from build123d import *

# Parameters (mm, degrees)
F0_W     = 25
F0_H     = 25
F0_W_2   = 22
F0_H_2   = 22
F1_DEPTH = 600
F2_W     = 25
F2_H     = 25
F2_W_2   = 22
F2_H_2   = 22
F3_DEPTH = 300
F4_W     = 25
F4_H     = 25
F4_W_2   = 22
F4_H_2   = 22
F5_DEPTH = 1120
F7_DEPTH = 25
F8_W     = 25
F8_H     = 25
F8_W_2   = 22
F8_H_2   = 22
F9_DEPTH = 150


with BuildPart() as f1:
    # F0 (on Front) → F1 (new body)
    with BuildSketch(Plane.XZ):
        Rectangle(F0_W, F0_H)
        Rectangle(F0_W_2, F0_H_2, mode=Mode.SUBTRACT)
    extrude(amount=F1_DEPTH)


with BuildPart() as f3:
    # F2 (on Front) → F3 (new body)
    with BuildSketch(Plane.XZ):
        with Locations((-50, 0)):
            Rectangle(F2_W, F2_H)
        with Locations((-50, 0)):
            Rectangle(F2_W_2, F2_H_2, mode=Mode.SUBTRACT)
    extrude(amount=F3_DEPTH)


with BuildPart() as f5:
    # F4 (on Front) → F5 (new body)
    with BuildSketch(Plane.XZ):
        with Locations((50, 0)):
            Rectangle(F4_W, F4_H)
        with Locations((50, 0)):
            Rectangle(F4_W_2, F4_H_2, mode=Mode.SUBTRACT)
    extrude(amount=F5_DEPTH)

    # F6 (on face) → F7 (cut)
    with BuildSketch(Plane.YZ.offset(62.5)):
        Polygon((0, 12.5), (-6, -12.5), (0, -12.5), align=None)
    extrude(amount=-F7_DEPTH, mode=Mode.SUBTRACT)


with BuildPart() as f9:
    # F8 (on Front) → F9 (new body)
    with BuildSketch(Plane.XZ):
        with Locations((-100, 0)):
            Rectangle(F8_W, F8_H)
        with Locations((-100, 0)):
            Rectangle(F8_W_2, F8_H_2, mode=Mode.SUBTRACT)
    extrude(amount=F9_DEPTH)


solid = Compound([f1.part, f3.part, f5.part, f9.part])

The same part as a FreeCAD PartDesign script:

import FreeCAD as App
import Part
import Sketcher


def add_polygon(sketch, points):
    """Adds a closed chain of lines whose ends are joined by coincident constraints."""
    first, n = sketch.GeometryCount, len(points)
    for a, b in zip(points, points[1:] + points[:1]):
        sketch.addGeometry(Part.LineSegment(App.Vector(*a, 0), App.Vector(*b, 0)), False)
    for i in range(n):
        sketch.addConstraint(Sketcher.Constraint("Coincident", first + i, 2, first + (i + 1) % n, 1))

doc = App.newDocument("Part")
body = doc.addObject("PartDesign::Body", "Body")

# Sketch on XZ plane
sketch1 = body.newObject("Sketcher::SketchObject", "Sketch")
sketch1.AttachmentSupport = (doc.getObject("XZ_Plane"), [""])
sketch1.MapMode = "FlatFace"
add_polygon(sketch1, [(-12, 12), (-12, -12), (12, -12), (12, 12)])  # lines 0-3
add_polygon(sketch1, [(11, -11), (-11, -11), (-11, 11), (11, 11)])  # lines 4-7
sketch1.addConstraint(Sketcher.Constraint("Vertical", 0))
sketch1.addConstraint(Sketcher.Constraint("Horizontal", 1))
sketch1.addConstraint(Sketcher.Constraint("Vertical", 2))
sketch1.addConstraint(Sketcher.Constraint("Horizontal", 3))
sketch1.addConstraint(Sketcher.Constraint("Horizontal", 4))
sketch1.addConstraint(Sketcher.Constraint("Vertical", 5))
sketch1.addConstraint(Sketcher.Constraint("Horizontal", 6))
sketch1.addConstraint(Sketcher.Constraint("Vertical", 7))
sketch1.addConstraint(Sketcher.Constraint("Symmetric", 0, 2, 2, 2, -1, 1))
sketch1.addConstraint(Sketcher.Constraint("Symmetric", 4, 2, 6, 2, -1, 1))
sketch1.addConstraint(Sketcher.Constraint("Equal", 3, 0))
sketch1.addConstraint(Sketcher.Constraint("Equal", 6, 5))
sketch1.addConstraint(Sketcher.Constraint("DistanceX", 1, 1, 1, 2, 25.0))
sketch1.addConstraint(Sketcher.Constraint("DistanceX", 4, 2, 4, 1, 22.0))
pad1 = body.newObject("PartDesign::Pad", "Pad")
pad1.Profile = sketch1
pad1.Length = 600
body2 = doc.addObject("PartDesign::Body", "Body001")

# Sketch on XZ plane
sketch2 = body2.newObject("Sketcher::SketchObject", "Sketch001")
sketch2.AttachmentSupport = (doc.getObject("XZ_Plane001"), [""])
sketch2.MapMode = "FlatFace"
add_polygon(sketch2, [(-62, 12), (-62, -12), (-38, -12), (-38, 12)])  # lines 0-3
add_polygon(sketch2, [(-39, -11), (-61, -11), (-61, 11), (-39, 11)])  # lines 4-7
sketch2.addConstraint(Sketcher.Constraint("Vertical", 0))
sketch2.addConstraint(Sketcher.Constraint("Horizontal", 1))
sketch2.addConstraint(Sketcher.Constraint("Vertical", 2))
sketch2.addConstraint(Sketcher.Constraint("Horizontal", 3))
sketch2.addConstraint(Sketcher.Constraint("Horizontal", 4))
sketch2.addConstraint(Sketcher.Constraint("Vertical", 5))
sketch2.addConstraint(Sketcher.Constraint("Horizontal", 6))
sketch2.addConstraint(Sketcher.Constraint("Vertical", 7))
sketch2.addConstraint(Sketcher.Constraint("Equal", 3, 0))
sketch2.addConstraint(Sketcher.Constraint("Equal", 6, 5))
sketch2.addConstraint(Sketcher.Constraint("DistanceX", 1, 1, 1, 2, 25.0))
sketch2.addConstraint(Sketcher.Constraint("DistanceX", 4, 2, 4, 1, 22.0))
sketch2.addConstraint(Sketcher.Constraint("DistanceX", 4, 2, -1, 1, 61.0))
sketch2.addConstraint(Sketcher.Constraint("DistanceY", 4, 2, -1, 1, 11.0))
sketch2.addConstraint(Sketcher.Constraint("DistanceX", 0, 2, -1, 1, 62.5))
sketch2.addConstraint(Sketcher.Constraint("DistanceY", 0, 2, -1, 1, 12.5))
pad2 = body2.newObject("PartDesign::Pad", "Pad001")
pad2.Profile = sketch2
pad2.Length = 300
body3 = doc.addObject("PartDesign::Body", "Body002")

# Sketch on XZ plane
sketch3 = body3.newObject("Sketcher::SketchObject", "Sketch002")
sketch3.AttachmentSupport = (doc.getObject("XZ_Plane002"), [""])
sketch3.MapMode = "FlatFace"
add_polygon(sketch3, [(38, 12), (38, -12), (62, -12), (62, 12)])  # lines 0-3
add_polygon(sketch3, [(61, -11), (39, -11), (39, 11), (61, 11)])  # lines 4-7
sketch3.addConstraint(Sketcher.Constraint("Vertical", 0))
sketch3.addConstraint(Sketcher.Constraint("Horizontal", 1))
sketch3.addConstraint(Sketcher.Constraint("Vertical", 2))
sketch3.addConstraint(Sketcher.Constraint("Horizontal", 3))
sketch3.addConstraint(Sketcher.Constraint("Horizontal", 4))
sketch3.addConstraint(Sketcher.Constraint("Vertical", 5))
sketch3.addConstraint(Sketcher.Constraint("Horizontal", 6))
sketch3.addConstraint(Sketcher.Constraint("Vertical", 7))
sketch3.addConstraint(Sketcher.Constraint("Equal", 3, 0))
sketch3.addConstraint(Sketcher.Constraint("Equal", 6, 5))
sketch3.addConstraint(Sketcher.Constraint("DistanceX", 1, 1, 1, 2, 25.0))
sketch3.addConstraint(Sketcher.Constraint("DistanceX", 4, 2, 4, 1, 22.0))
sketch3.addConstraint(Sketcher.Constraint("DistanceX", -1, 1, 4, 2, 39.0))
sketch3.addConstraint(Sketcher.Constraint("DistanceY", 4, 2, -1, 1, 11.0))
sketch3.addConstraint(Sketcher.Constraint("DistanceX", -1, 1, 0, 2, 37.5))
sketch3.addConstraint(Sketcher.Constraint("DistanceY", 0, 2, -1, 1, 12.5))
pad3 = body3.newObject("PartDesign::Pad", "Pad002")
pad3.Profile = sketch3
pad3.Length = 1120

# Sketch on YZ plane
sketch4 = body3.newObject("Sketcher::SketchObject", "Sketch003")
sketch4.AttachmentSupport = (doc.getObject("YZ_Plane002"), [""])
sketch4.MapMode = "FlatFace"
sketch4.AttachmentOffset = App.Placement(App.Vector(0, 0, 62.5), App.Rotation())
add_polygon(sketch4, [(0, 12), (-6, -12), (0, -12)])  # lines 0-2
sketch4.addConstraint(Sketcher.Constraint("Horizontal", 1))
sketch4.addConstraint(Sketcher.Constraint("Vertical", 2))
sketch4.addConstraint(Sketcher.Constraint("Symmetric", 1, 2, 2, 2, -1, 1))
sketch4.addConstraint(Sketcher.Constraint("DistanceX", 1, 1, 1, 2, 6.0))
sketch4.addConstraint(Sketcher.Constraint("DistanceY", 2, 1, 2, 2, 25.0))
pocket1 = body3.newObject("PartDesign::Pocket", "Pocket")
pocket1.Profile = sketch4
pocket1.Length = 25
body4 = doc.addObject("PartDesign::Body", "Body003")

# Sketch on XZ plane
sketch5 = body4.newObject("Sketcher::SketchObject", "Sketch004")
sketch5.AttachmentSupport = (doc.getObject("XZ_Plane003"), [""])
sketch5.MapMode = "FlatFace"
add_polygon(sketch5, [(-112, 12), (-112, -12), (-88, -12), (-88, 12)])  # lines 0-3
add_polygon(sketch5, [(-89, -11), (-111, -11), (-111, 11), (-89, 11)])  # lines 4-7
sketch5.addConstraint(Sketcher.Constraint("Vertical", 0))
sketch5.addConstraint(Sketcher.Constraint("Horizontal", 1))
sketch5.addConstraint(Sketcher.Constraint("Vertical", 2))
sketch5.addConstraint(Sketcher.Constraint("Horizontal", 3))
sketch5.addConstraint(Sketcher.Constraint("Horizontal", 4))
sketch5.addConstraint(Sketcher.Constraint("Vertical", 5))
sketch5.addConstraint(Sketcher.Constraint("Horizontal", 6))
sketch5.addConstraint(Sketcher.Constraint("Vertical", 7))
sketch5.addConstraint(Sketcher.Constraint("Equal", 3, 0))
sketch5.addConstraint(Sketcher.Constraint("Equal", 6, 5))
sketch5.addConstraint(Sketcher.Constraint("DistanceX", 1, 1, 1, 2, 25.0))
sketch5.addConstraint(Sketcher.Constraint("DistanceX", 4, 2, 4, 1, 22.0))
sketch5.addConstraint(Sketcher.Constraint("DistanceX", 4, 2, -1, 1, 111.0))
sketch5.addConstraint(Sketcher.Constraint("DistanceY", 4, 2, -1, 1, 11.0))
sketch5.addConstraint(Sketcher.Constraint("DistanceX", 0, 2, -1, 1, 112.5))
sketch5.addConstraint(Sketcher.Constraint("DistanceY", 0, 2, -1, 1, 12.5))
pad4 = body4.newObject("PartDesign::Pad", "Pad003")
pad4.Profile = sketch5
pad4.Length = 150

doc.recompute()
